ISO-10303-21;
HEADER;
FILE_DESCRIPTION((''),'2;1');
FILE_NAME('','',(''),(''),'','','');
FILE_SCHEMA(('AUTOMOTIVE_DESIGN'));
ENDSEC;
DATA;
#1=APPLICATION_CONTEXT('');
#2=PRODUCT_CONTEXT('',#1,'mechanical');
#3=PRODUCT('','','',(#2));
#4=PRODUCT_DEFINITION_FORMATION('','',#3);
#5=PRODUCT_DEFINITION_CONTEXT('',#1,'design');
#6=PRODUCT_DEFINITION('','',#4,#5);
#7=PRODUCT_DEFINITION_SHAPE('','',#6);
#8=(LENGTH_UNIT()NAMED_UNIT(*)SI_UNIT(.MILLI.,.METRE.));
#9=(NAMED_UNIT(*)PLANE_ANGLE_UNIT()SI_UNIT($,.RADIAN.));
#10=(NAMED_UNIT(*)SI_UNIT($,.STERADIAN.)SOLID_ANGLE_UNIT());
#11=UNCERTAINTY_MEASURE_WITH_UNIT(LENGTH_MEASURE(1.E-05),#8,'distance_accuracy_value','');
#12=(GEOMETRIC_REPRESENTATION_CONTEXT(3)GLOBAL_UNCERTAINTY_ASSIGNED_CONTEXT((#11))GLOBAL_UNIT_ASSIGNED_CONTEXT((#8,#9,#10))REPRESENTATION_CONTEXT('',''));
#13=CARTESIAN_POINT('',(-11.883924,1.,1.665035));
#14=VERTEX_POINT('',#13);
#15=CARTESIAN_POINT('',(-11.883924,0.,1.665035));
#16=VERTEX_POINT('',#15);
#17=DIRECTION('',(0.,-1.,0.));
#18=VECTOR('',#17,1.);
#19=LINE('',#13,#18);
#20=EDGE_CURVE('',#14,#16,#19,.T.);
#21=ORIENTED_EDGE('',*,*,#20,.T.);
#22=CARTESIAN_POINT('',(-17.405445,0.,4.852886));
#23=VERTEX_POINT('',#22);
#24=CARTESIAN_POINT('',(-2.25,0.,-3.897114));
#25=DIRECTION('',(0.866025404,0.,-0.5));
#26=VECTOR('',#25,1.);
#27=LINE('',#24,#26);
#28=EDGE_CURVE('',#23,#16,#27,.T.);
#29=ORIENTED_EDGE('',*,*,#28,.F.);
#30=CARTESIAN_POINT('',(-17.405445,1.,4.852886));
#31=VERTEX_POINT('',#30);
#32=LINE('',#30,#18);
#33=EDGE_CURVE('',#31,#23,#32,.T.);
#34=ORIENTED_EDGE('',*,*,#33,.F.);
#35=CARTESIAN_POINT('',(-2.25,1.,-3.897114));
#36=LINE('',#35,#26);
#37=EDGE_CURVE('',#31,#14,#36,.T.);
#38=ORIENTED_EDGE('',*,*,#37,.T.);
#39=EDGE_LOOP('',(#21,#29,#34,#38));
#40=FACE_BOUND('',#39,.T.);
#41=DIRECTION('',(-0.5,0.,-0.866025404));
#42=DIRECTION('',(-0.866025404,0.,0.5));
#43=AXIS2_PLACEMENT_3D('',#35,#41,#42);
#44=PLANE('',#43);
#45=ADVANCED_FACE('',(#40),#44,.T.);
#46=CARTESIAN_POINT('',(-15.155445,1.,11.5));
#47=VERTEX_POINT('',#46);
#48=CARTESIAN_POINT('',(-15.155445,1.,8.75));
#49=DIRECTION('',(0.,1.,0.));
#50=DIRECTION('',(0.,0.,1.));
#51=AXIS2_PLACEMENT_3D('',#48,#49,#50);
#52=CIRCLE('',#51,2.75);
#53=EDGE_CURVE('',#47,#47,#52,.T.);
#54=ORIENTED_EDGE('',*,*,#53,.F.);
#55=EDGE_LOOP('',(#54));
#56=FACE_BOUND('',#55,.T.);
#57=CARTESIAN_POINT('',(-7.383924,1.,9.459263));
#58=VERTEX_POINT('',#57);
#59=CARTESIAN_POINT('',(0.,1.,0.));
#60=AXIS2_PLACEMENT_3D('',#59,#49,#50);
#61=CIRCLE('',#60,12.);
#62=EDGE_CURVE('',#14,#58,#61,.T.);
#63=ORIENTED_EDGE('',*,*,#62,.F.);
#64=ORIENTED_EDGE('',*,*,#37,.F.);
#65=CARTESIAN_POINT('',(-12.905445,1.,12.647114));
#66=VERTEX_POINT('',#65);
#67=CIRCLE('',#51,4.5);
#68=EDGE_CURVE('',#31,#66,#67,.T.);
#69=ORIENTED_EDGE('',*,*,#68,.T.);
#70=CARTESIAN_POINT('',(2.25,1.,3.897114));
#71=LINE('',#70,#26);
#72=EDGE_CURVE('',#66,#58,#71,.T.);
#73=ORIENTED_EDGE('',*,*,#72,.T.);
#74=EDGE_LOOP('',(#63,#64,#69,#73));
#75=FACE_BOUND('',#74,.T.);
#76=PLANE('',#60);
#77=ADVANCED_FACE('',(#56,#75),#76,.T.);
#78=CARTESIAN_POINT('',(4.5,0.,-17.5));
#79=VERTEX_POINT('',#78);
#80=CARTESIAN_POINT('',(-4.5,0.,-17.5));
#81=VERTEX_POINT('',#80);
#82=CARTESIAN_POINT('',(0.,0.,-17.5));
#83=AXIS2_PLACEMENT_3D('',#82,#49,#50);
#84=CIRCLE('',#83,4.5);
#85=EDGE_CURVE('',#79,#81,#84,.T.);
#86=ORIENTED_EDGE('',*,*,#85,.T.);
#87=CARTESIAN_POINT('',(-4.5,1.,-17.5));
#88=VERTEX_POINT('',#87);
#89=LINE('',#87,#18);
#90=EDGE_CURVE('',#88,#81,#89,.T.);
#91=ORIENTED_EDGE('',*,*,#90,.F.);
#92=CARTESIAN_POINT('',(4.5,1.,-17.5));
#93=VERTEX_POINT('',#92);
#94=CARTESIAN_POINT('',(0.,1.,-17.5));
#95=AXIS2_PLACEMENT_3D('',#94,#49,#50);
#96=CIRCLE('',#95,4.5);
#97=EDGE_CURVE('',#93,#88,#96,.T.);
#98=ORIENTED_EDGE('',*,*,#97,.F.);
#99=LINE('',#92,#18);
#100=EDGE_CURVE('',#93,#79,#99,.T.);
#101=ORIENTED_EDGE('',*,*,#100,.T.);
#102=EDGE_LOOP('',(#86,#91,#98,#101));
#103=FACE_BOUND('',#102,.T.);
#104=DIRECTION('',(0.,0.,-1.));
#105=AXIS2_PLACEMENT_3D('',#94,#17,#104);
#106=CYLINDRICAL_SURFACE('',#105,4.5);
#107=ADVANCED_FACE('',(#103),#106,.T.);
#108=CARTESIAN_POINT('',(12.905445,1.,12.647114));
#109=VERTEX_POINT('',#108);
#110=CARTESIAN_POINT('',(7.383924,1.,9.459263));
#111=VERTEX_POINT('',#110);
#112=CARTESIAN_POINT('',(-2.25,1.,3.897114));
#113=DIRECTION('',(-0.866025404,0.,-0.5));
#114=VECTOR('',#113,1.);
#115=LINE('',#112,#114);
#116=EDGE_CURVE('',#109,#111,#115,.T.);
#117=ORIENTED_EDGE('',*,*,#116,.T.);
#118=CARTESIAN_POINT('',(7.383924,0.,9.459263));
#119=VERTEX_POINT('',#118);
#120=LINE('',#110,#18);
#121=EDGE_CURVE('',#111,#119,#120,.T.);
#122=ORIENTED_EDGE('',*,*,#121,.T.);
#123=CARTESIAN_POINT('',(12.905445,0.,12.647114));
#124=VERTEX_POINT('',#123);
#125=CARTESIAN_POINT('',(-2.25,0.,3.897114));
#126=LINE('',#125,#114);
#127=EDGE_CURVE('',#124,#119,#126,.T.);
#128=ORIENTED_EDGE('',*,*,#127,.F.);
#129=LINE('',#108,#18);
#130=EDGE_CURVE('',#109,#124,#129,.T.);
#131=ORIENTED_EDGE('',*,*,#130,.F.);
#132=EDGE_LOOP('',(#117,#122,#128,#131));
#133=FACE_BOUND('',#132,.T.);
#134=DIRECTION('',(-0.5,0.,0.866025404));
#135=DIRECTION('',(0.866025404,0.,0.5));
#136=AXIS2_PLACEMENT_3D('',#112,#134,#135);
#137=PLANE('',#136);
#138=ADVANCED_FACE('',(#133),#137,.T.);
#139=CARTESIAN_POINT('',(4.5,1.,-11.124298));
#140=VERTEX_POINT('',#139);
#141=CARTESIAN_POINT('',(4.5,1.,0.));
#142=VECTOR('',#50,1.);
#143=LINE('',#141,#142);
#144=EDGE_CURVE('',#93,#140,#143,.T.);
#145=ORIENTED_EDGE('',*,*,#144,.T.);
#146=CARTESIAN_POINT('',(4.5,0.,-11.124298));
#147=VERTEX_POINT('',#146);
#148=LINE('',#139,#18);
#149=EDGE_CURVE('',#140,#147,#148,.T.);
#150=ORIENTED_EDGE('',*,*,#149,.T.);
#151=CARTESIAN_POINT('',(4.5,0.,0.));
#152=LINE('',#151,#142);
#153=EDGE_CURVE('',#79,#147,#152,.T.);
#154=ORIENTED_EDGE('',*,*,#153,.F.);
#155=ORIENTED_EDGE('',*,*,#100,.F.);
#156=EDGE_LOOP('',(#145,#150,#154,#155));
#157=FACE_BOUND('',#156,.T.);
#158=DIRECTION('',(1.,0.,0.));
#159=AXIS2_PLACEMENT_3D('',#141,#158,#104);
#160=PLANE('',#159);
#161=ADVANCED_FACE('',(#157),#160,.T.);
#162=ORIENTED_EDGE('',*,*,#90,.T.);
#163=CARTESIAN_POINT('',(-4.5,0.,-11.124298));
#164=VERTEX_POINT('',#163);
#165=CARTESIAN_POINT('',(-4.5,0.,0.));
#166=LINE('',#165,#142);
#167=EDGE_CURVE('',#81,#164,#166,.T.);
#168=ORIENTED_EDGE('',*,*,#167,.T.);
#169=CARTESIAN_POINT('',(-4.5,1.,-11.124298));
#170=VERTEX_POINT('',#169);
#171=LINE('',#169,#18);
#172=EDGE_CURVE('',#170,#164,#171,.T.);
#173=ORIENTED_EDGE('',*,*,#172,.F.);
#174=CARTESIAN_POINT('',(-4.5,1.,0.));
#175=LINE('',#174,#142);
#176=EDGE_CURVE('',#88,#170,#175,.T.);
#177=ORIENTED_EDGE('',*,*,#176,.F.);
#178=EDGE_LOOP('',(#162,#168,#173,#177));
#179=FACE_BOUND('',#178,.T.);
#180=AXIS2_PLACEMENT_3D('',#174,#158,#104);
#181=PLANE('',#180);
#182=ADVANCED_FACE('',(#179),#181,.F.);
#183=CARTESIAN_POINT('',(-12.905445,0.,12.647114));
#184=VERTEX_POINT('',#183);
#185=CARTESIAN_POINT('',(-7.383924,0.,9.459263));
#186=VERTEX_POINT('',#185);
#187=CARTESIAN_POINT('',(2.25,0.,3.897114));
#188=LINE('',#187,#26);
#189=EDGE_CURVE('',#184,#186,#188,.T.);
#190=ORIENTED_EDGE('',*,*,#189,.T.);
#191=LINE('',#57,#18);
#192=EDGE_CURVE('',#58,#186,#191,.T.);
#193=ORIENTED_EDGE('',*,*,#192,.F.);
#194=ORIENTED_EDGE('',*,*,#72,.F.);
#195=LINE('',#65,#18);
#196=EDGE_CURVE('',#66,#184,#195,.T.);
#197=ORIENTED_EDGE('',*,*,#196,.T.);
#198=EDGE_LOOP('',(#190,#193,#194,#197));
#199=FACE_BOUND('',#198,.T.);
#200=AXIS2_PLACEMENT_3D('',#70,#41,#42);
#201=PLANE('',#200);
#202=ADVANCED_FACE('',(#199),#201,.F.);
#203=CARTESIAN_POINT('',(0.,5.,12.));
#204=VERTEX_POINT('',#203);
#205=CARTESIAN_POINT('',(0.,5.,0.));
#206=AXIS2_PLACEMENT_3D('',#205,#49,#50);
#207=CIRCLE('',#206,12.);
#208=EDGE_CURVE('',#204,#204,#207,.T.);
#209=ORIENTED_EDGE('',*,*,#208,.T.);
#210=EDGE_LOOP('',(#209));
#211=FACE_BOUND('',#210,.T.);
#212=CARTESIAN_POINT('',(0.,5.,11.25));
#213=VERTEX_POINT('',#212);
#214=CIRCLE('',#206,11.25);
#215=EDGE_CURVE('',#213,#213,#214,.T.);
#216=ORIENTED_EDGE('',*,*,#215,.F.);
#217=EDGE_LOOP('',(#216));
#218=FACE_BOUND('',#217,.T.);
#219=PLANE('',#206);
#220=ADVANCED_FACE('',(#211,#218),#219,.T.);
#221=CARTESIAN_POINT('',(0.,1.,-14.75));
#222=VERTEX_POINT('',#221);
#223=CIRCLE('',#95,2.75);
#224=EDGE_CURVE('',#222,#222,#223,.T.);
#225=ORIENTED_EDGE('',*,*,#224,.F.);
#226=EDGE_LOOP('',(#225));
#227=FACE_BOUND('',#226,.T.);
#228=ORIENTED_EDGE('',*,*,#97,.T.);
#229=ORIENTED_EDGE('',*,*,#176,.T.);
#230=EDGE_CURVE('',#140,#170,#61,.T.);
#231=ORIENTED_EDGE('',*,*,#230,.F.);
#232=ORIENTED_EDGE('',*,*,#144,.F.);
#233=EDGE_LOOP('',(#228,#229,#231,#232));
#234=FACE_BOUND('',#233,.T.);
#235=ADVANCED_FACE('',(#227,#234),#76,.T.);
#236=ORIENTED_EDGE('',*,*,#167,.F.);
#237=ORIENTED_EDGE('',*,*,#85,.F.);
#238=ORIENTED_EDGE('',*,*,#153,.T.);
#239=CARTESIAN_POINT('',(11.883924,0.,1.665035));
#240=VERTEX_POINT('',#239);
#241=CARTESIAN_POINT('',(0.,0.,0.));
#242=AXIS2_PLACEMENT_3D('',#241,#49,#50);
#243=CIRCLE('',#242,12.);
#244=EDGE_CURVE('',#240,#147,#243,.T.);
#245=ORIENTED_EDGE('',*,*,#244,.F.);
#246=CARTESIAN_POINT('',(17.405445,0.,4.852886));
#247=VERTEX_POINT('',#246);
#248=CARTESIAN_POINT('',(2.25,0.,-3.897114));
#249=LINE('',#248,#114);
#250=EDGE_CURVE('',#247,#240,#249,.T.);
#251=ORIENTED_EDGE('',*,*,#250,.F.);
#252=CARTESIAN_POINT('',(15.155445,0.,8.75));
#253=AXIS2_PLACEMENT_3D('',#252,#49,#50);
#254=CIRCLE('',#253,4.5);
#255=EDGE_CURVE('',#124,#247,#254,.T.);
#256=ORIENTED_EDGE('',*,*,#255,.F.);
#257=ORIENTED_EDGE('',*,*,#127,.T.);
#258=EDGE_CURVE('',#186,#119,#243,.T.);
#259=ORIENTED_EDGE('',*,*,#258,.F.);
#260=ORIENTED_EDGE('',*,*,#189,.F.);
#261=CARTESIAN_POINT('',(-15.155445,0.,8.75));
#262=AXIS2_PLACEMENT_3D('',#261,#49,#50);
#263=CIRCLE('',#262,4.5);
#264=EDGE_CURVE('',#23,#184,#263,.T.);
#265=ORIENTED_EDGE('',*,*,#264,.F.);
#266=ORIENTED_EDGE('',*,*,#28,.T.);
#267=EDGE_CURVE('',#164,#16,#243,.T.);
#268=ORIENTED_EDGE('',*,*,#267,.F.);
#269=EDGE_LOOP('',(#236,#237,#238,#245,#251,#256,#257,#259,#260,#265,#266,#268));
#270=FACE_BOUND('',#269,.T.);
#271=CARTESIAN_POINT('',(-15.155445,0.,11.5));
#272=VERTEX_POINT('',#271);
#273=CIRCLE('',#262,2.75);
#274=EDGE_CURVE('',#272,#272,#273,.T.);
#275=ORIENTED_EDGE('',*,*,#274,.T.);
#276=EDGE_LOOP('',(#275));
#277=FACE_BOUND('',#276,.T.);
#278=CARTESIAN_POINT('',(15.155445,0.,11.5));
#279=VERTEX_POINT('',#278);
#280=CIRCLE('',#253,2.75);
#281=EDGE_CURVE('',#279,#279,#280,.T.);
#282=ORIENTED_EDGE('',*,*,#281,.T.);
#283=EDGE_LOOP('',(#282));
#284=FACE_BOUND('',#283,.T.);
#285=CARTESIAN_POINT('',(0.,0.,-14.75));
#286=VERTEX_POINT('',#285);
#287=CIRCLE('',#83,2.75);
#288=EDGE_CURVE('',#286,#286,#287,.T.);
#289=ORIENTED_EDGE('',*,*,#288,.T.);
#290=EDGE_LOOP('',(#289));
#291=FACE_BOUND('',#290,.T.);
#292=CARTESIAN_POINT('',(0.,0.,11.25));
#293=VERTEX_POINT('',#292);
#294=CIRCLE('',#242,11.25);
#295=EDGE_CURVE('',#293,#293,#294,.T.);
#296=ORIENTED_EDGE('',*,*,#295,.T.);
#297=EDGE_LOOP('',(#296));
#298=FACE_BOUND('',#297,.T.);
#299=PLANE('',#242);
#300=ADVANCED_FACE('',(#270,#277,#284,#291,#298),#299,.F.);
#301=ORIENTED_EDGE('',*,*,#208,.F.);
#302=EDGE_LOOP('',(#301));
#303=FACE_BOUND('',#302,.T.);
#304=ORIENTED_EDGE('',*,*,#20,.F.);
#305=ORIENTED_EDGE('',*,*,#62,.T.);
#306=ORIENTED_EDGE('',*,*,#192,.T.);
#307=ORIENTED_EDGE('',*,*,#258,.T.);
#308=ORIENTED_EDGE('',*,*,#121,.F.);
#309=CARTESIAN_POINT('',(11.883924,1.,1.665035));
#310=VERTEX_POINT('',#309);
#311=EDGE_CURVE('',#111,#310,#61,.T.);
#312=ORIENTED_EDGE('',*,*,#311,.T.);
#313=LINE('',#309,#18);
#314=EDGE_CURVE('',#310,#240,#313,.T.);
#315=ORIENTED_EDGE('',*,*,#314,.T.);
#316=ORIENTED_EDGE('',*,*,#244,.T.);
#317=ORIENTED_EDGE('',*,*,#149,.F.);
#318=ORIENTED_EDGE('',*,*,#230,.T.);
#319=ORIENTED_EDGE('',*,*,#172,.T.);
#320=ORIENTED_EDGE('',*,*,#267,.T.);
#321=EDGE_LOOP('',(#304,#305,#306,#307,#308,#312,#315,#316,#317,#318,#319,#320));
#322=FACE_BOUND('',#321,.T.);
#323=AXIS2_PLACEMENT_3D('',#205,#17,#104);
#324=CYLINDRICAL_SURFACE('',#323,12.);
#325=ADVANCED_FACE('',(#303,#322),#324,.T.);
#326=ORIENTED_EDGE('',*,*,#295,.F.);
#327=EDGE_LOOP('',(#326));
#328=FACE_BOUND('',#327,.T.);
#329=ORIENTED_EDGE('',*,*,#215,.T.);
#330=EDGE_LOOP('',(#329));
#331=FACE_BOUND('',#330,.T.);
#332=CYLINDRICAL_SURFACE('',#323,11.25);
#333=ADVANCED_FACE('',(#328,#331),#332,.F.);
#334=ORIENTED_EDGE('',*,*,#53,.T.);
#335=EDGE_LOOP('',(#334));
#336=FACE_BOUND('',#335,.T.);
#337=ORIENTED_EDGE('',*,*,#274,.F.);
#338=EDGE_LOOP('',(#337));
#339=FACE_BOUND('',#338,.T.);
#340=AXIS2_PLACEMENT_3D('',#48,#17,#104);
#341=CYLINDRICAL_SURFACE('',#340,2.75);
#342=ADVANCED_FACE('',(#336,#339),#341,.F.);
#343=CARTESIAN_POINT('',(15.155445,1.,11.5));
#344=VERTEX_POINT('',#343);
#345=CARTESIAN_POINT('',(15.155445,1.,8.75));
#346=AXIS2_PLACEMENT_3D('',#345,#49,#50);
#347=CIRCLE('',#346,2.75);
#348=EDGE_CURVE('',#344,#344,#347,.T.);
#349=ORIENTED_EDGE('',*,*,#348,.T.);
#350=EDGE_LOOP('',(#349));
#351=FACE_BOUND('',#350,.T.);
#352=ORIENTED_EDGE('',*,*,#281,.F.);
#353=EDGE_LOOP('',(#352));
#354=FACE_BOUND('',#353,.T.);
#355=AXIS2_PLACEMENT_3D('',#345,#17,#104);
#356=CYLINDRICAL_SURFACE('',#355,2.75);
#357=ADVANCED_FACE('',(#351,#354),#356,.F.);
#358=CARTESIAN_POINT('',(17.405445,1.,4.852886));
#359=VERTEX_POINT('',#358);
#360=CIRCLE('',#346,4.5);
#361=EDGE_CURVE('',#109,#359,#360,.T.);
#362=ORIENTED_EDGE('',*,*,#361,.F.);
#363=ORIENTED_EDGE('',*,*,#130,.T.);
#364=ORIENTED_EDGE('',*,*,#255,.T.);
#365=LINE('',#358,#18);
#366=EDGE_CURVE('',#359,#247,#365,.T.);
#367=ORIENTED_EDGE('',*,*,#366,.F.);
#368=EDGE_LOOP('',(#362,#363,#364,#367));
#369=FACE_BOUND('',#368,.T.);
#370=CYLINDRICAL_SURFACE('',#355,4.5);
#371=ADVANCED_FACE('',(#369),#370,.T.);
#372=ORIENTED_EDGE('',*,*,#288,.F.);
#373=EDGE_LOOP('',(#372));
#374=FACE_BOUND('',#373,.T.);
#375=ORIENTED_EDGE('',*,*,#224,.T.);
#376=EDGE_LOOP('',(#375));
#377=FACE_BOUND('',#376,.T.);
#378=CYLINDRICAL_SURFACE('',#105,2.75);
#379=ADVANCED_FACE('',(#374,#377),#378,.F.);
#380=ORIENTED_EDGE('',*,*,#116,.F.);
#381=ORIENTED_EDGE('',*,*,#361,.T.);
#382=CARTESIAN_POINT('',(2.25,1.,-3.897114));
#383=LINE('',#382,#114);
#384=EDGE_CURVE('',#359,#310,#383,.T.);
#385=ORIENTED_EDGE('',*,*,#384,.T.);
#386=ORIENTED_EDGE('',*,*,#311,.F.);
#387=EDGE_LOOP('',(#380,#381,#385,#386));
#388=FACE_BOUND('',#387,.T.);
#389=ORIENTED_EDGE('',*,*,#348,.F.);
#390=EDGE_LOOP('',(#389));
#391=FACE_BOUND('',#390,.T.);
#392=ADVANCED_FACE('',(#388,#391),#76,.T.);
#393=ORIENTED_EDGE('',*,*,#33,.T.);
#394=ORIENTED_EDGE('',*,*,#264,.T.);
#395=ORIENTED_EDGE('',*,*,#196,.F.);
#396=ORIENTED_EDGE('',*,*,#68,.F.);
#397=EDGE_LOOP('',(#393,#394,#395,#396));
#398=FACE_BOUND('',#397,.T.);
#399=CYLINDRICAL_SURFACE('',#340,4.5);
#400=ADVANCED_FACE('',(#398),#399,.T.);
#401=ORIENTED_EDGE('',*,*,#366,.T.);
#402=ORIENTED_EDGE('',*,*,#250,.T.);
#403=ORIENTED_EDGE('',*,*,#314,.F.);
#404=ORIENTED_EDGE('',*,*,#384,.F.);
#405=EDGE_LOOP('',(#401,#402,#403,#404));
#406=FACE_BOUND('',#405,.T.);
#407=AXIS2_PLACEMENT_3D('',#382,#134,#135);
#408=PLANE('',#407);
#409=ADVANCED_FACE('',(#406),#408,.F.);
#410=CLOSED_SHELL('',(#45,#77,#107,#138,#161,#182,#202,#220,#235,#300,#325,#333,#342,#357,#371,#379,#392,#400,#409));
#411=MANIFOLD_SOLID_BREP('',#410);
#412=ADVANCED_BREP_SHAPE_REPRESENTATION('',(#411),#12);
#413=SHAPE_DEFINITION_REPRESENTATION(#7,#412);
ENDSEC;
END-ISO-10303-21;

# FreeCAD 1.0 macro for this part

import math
import FreeCAD as App
import Part
import Sketcher
Q = App.Units.Quantity

doc = App.newDocument("Part")
body = doc.addObject("PartDesign::Body", "Body")

# Sketch on XZ plane
sketch1 = doc.addObject("Sketcher::SketchObject", "Sketch")
body.addObject(sketch1)
sketch1.AttachmentSupport = (doc.XZ_Plane, [""])
sketch1.MapMode = "FlatFace"
sketch1.addGeometry([
    Part.ArcOfCircle(Part.Circle(App.Vector(15.155445, 8.75, 0), App.Vector(0, 0, 1), 4.5), math.radians(-60), math.radians(120)),  # 0
    Part.LineSegment(App.Vector(17.405445, 4.852886, 0), App.Vector(11.883924, 1.665035, 0)),  # 1
    Part.ArcOfCircle(Part.Circle(App.Vector(0, 0, 0), App.Vector(0, 0, 1), 12), math.radians(7.975687), math.radians(52.024313)),  # 2
    Part.LineSegment(App.Vector(7.383924, 9.459263, 0), App.Vector(12.905445, 12.647114, 0)),  # 3
    Part.Circle(App.Vector(15.155445, 8.75, 0), App.Vector(0, 0, 1), 2.75),  # 4
], False)
sketch1.addConstraint([
    Sketcher.Constraint("Tangent", 0, 1, 1, 1),
    Sketcher.Constraint("Coincident", 1, 2, 2, 1),
    Sketcher.Constraint("Coincident", 2, 2, 3, 1),
    Sketcher.Constraint("Tangent", 3, 2, 0, 2),
    Sketcher.Constraint("Coincident", 2, 3, -1, 1),
    Sketcher.Constraint("Coincident", 4, 3, 0, 3),
    Sketcher.Constraint("Parallel", 1, 3),
    Sketcher.Constraint("Equal", 1, 3),
    Sketcher.Constraint("Radius", 2, 12.0),
    Sketcher.Constraint("Diameter", 4, 5.5),
    Sketcher.Constraint("Radius", 0, 4.5),
    Sketcher.Constraint("Angle", 1, Q("-150 deg")),
    Sketcher.Constraint("DistanceY", -1, 1, 0, 3, 8.75),
])
pad1 = doc.addObject("PartDesign::Pad", "Pad")
body.addObject(pad1)
pad1.Profile = sketch1
pad1.Length = 1
pad1.Reversed = True
body2 = doc.addObject("PartDesign::Body", "Body001")

# Sketch on XZ plane
sketch2 = doc.addObject("Sketcher::SketchObject", "Sketch001")
body2.addObject(sketch2)
sketch2.AttachmentSupport = (doc.getObject("XZ_Plane001"), [""])
sketch2.MapMode = "FlatFace"
sketch2.addGeometry([
    Part.ArcOfCircle(Part.Circle(App.Vector(-15.155445, 8.75, 0), App.Vector(0, 0, 1), 4.5), math.radians(60), math.radians(240)),  # 0
    Part.LineSegment(App.Vector(-12.905445, 12.647114, 0), App.Vector(-7.383924, 9.459263, 0)),  # 1
    Part.ArcOfCircle(Part.Circle(App.Vector(0, 0, 0), App.Vector(0, 0, 1), 12), math.radians(127.975687), math.radians(172.024313)),  # 2
    Part.LineSegment(App.Vector(-11.883924, 1.665035, 0), App.Vector(-17.405445, 4.852886, 0)),  # 3
    Part.Circle(App.Vector(-15.155445, 8.75, 0), App.Vector(0, 0, 1), 2.75),  # 4
], False)
sketch2.addConstraint([
    Sketcher.Constraint("Tangent", 0, 1, 1, 1),
    Sketcher.Constraint("Coincident", 1, 2, 2, 1),
    Sketcher.Constraint("Coincident", 2, 2, 3, 1),
    Sketcher.Constraint("Tangent", 3, 2, 0, 2),
    Sketcher.Constraint("Coincident", 2, 3, -1, 1),
    Sketcher.Constraint("Coincident", 4, 3, 0, 3),
    Sketcher.Constraint("Parallel", 1, 3),
    Sketcher.Constraint("Equal", 1, 3),
    Sketcher.Constraint("Radius", 2, 12.0),
    Sketcher.Constraint("Diameter", 4, 5.5),
    Sketcher.Constraint("Radius", 0, 4.5),
    Sketcher.Constraint("Angle", 1, Q("-30 deg")),
    Sketcher.Constraint("DistanceY", -1, 1, 0, 3, 8.75),
])
pad2 = doc.addObject("PartDesign::Pad", "Pad001")
body2.addObject(pad2)
pad2.Profile = sketch2
pad2.Length = 1
pad2.Reversed = True
body3 = doc.addObject("PartDesign::Body", "Body002")

# Sketch on XZ plane
sketch3 = doc.addObject("Sketcher::SketchObject", "Sketch002")
body3.addObject(sketch3)
sketch3.AttachmentSupport = (doc.getObject("XZ_Plane002"), [""])
sketch3.MapMode = "FlatFace"
sketch3.addGeometry([
    Part.ArcOfCircle(Part.Circle(App.Vector(0, 0, 0), App.Vector(0, 0, 1), 12), math.radians(-112.024313), math.radians(-67.975687)),  # 0
    Part.LineSegment(App.Vector(4.5, -11.124298, 0), App.Vector(4.5, -17.5, 0)),  # 1
    Part.ArcOfCircle(Part.Circle(App.Vector(0, -17.5, 0), App.Vector(0, 0, 1), 4.5), math.radians(180), math.radians(360)),  # 2
    Part.LineSegment(App.Vector(-4.5, -17.5, 0), App.Vector(-4.5, -11.124298, 0)),  # 3
    Part.Circle(App.Vector(0, -17.5, 0), App.Vector(0, 0, 1), 2.75),  # 4
], False)
sketch3.addConstraint([
    Sketcher.Constraint("Coincident", 0, 2, 1, 1),
    Sketcher.Constraint("Tangent", 1, 2, 2, 2),
    Sketcher.Constraint("Tangent", 2, 1, 3, 1),
    Sketcher.Constraint("Coincident", 3, 2, 0, 1),
    Sketcher.Constraint("Vertical", 1),
    Sketcher.Constraint("Vertical", 3),
    Sketcher.Constraint("Coincident", 0, 3, -1, 1),
    Sketcher.Constraint("Coincident", 4, 3, 2, 3),
    Sketcher.Constraint("PointOnObject", 2, 3, -2),
    Sketcher.Constraint("Radius", 0, 12.0),
    Sketcher.Constraint("Diameter", 4, 5.5),
    Sketcher.Constraint("Radius", 2, 4.5),
    Sketcher.Constraint("DistanceY", 2, 3, -1, 1, 17.5),
])
pad3 = doc.addObject("PartDesign::Pad", "Pad002")
body3.addObject(pad3)
pad3.Profile = sketch3
pad3.Length = 1
pad3.Reversed = True
body.AllowCompound = True
doc.recompute()

boolean = doc.addObject("PartDesign::Boolean", "Boolean")
body.addObject(boolean)
boolean.Type = "Fuse"
boolean.addObjects([body2])
doc.recompute()

boolean2 = doc.addObject("PartDesign::Boolean", "Boolean001")
body.addObject(boolean2)
boolean2.Type = "Fuse"
boolean2.addObjects([body3])

# Sketch on XZ plane
sketch4 = doc.addObject("Sketcher::SketchObject", "Sketch003")
body.addObject(sketch4)
sketch4.AttachmentSupport = (doc.XZ_Plane, [""])
sketch4.MapMode = "FlatFace"
sketch4.addGeometry([
    Part.Circle(App.Vector(0, 0, 0), App.Vector(0, 0, 1), 12),
    Part.Circle(App.Vector(0, 0, 0), App.Vector(0, 0, 1), 11.25),
], False)
sketch4.addConstraint([
    Sketcher.Constraint("Coincident", 0, 3, -1, 1),
    Sketcher.Constraint("Coincident", 1, 3, -1, 1),
    Sketcher.Constraint("Diameter", 0, 24.0),
    Sketcher.Constraint("Diameter", 1, 22.5),
])
pad4 = doc.addObject("PartDesign::Pad", "Pad003")
body.addObject(pad4)
pad4.Profile = sketch4
pad4.Length = 5
pad4.Reversed = True

doc.recompute()
